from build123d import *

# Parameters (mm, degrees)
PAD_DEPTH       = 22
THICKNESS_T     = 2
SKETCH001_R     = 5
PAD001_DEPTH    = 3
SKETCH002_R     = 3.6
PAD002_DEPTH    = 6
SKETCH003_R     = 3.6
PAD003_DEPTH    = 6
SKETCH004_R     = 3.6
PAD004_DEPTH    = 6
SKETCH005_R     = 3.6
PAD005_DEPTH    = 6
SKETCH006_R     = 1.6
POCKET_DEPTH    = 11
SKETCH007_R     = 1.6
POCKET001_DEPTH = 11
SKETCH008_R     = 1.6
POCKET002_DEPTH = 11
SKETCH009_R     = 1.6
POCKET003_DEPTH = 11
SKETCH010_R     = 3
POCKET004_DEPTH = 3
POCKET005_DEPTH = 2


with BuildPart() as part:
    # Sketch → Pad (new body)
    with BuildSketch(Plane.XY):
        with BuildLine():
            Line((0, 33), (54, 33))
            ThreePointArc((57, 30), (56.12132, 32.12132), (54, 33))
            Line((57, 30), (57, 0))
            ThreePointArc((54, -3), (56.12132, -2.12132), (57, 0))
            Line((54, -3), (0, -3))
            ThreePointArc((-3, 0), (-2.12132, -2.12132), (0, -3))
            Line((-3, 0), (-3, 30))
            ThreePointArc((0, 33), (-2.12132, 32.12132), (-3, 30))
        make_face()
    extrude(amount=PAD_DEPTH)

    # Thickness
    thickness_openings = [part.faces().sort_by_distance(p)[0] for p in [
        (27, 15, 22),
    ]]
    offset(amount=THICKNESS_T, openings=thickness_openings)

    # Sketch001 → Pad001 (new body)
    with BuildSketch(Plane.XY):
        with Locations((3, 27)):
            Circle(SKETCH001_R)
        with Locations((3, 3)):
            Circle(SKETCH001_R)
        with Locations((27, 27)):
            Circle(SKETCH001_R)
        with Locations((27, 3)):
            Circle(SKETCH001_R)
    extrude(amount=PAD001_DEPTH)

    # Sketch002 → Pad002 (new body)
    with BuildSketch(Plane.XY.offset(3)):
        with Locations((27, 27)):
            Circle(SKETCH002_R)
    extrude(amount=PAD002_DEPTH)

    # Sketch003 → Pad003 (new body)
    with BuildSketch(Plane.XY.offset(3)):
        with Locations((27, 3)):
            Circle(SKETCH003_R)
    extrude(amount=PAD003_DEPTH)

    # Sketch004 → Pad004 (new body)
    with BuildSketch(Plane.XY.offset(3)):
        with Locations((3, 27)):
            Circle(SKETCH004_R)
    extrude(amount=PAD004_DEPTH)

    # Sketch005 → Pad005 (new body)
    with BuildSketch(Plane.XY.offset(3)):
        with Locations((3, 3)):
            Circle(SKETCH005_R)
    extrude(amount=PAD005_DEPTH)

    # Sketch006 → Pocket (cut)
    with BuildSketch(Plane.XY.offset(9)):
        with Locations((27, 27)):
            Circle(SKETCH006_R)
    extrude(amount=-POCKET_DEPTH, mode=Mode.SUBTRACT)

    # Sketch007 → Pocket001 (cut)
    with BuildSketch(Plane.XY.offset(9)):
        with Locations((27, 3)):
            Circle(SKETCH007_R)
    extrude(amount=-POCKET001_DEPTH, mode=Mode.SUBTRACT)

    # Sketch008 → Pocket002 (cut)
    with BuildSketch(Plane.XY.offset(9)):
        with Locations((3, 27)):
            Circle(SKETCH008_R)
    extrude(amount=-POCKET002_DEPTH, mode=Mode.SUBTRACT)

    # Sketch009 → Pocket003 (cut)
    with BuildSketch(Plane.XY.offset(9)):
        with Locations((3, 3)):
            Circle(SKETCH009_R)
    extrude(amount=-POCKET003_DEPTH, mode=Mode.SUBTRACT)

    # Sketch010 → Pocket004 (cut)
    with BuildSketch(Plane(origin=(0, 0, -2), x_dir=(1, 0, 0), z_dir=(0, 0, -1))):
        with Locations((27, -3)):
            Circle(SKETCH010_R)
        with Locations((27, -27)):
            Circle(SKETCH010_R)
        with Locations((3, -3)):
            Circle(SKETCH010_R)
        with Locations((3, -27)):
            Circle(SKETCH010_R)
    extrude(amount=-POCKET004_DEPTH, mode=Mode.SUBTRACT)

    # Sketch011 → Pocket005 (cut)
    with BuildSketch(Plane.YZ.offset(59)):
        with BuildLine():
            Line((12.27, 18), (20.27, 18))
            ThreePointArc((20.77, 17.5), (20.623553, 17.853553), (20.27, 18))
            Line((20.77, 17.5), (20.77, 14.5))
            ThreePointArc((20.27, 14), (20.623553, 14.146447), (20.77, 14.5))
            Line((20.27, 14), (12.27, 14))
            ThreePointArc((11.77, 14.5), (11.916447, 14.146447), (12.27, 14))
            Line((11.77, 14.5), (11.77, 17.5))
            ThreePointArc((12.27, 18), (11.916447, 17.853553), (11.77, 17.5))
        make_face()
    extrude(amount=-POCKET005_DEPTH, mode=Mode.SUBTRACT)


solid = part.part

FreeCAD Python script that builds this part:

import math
import FreeCAD as App
import Part
import Sketcher


def faces_at(feature, points):
    """Names of the faces that lie closest to the given points."""
    faces = feature.Shape.Faces
    near = lambda p: min(range(len(faces)), key=lambda i: faces[i].distToShape(Part.Vertex(*p))[0])
    return sorted({f"Face{near(p) + 1}" for p in points})

doc = App.newDocument("Part")
params = doc.addObject("Spreadsheet::Sheet", "Params")
for row, (alias, value) in enumerate([
    ("sketch1_radius", "3.000001 mm"),
    ("sketch1_width", "54 mm"),
    ("sketch1_height", "30 mm"),
    ("pad1_length", "22 mm"),
    ("thickness_wall", "2 mm"),
    ("sketch2_diameter", "10 mm"),
    ("pad2_length", "3 mm"),
    ("sketch3_diameter", "7.2 mm"),
    ("pad3_length", "6 mm"),
    ("sketch4_diameter", "7.2 mm"),
    ("pad4_length", "6 mm"),
    ("sketch5_diameter", "7.2 mm"),
    ("pad5_length", "6 mm"),
    ("sketch6_diameter", "7.2 mm"),
    ("pad6_length", "6 mm"),
    ("sketch7_diameter", "3.2 mm"),
    ("pocket1_length", "11 mm"),
    ("sketch8_diameter", "3.2 mm"),
    ("pocket2_length", "11 mm"),
    ("sketch9_diameter", "3.2 mm"),
    ("pocket3_length", "11 mm"),
    ("sketch10_diameter", "3.2 mm"),
    ("pocket4_length", "11 mm"),
    ("sketch11_diameter", "6 mm"),
    ("pocket5_length", "3 mm"),
    ("sketch12_radius", "0.500001 mm"),
    ("sketch12_width", "8 mm"),
    ("sketch12_height", "3 mm"),
    ("pocket6_length", "2 mm"),
], start=1):
    params.set(f"A{row}", alias)
    params.set(f"B{row}", "=" + value)
    params.setAlias(f"B{row}", alias)

body = doc.addObject("PartDesign::Body", "Body")

# Sketch on XY plane
sketch1 = body.newObject("Sketcher::SketchObject", "Sketch")
sketch1.AttachmentSupport = (doc.getObject("XY_Plane"), [""])
sketch1.MapMode = "FlatFace"
sketch1.addGeometry([
    Part.LineSegment(App.Vector(54, 33, 0), App.Vector(0, 33, 0)),  # 0
    Part.ArcOfCircle(Part.Circle(App.Vector(0, 30, 0), App.Vector(0, 0, 1), 3), math.radians(90), math.radians(180)),  # 1
    Part.LineSegment(App.Vector(-3, 30, 0), App.Vector(-3, 0, 0)),  # 2
    Part.ArcOfCircle(Part.Circle(App.Vector(0, 0, 0), App.Vector(0, 0, 1), 3), math.radians(-180), math.radians(-90)),  # 3
    Part.LineSegment(App.Vector(0, -3, 0), App.Vector(54, -3, 0)),  # 4
    Part.ArcOfCircle(Part.Circle(App.Vector(54, 0, 0), App.Vector(0, 0, 1), 3), math.radians(-90), math.radians(0)),  # 5
    Part.LineSegment(App.Vector(57, 0, 0), App.Vector(57, 30, 0)),  # 6
    Part.ArcOfCircle(Part.Circle(App.Vector(54, 30, 0), App.Vector(0, 0, 1), 3), math.radians(0), math.radians(90)),  # 7
], False)
sketch1.addConstraint([
    Sketcher.Constraint("Tangent", 0, 2, 1, 1),
    Sketcher.Constraint("Tangent", 1, 2, 2, 1),
    Sketcher.Constraint("Tangent", 2, 2, 3, 1),
    Sketcher.Constraint("Tangent", 3, 2, 4, 1),
    Sketcher.Constraint("Tangent", 4, 2, 5, 1),
    Sketcher.Constraint("Tangent", 5, 2, 6, 1),
    Sketcher.Constraint("Tangent", 6, 2, 7, 1),
    Sketcher.Constraint("Tangent", 7, 2, 0, 1),
    Sketcher.Constraint("Horizontal", 0),
    Sketcher.Constraint("Vertical", 2),
    Sketcher.Constraint("Horizontal", 4),
    Sketcher.Constraint("Vertical", 6),
    Sketcher.Constraint("Coincident", 3, 3, -1, 1),
    Sketcher.Constraint("Equal", 1, 3),
    Sketcher.Constraint("Equal", 3, 5),
    Sketcher.Constraint("Equal", 5, 7),
    Sketcher.Constraint("Radius", 1, 3.000001),
    Sketcher.Constraint("DistanceX", 0, 2, 0, 1, 54.0),
    Sketcher.Constraint("DistanceY", 2, 2, 2, 1, 30.0),
])
sketch1.setExpression("Constraints[16]", "Params.sketch1_radius")
sketch1.setExpression("Constraints[17]", "Params.sketch1_width")
sketch1.setExpression("Constraints[18]", "Params.sketch1_height")
pad1 = body.newObject("PartDesign::Pad", "Pad")
pad1.Profile = sketch1
pad1.setExpression("Length", "Params.pad1_length")
doc.recompute()

thickness = body.newObject("PartDesign::Thickness", "Thickness")
thickness.Base = (pad1, faces_at(pad1, [(27, 15, 22)]))
thickness.setExpression("Value", "Params.thickness_wall")
thickness.Reversed = False
thickness.Join = "Arc"

# Sketch on XY plane
sketch2 = body.newObject("Sketcher::SketchObject", "Sketch001")
sketch2.AttachmentSupport = (doc.getObject("XY_Plane"), [""])
sketch2.MapMode = "FlatFace"
sketch2.addGeometry([
    Part.Circle(App.Vector(3, 27, 0), App.Vector(0, 0, 1), 5),
    Part.Circle(App.Vector(3, 3, 0), App.Vector(0, 0, 1), 5),
    Part.Circle(App.Vector(27, 27, 0), App.Vector(0, 0, 1), 5),
    Part.Circle(App.Vector(27, 3, 0), App.Vector(0, 0, 1), 5),
], False)
sketch2.addConstraint([
    Sketcher.Constraint("Equal", 0, 1),
    Sketcher.Constraint("Equal", 1, 2),
    Sketcher.Constraint("Equal", 2, 3),
    Sketcher.Constraint("Horizontal", 0, 3, 2, 3),
    Sketcher.Constraint("Horizontal", 1, 3, 3, 3),
    Sketcher.Constraint("Vertical", 0, 3, 1, 3),
    Sketcher.Constraint("Vertical", 2, 3, 3, 3),
    Sketcher.Constraint("Diameter", 0, 10.0),
    Sketcher.Constraint("DistanceX", -1, 1, 0, 3, 3.0),
    Sketcher.Constraint("DistanceY", -1, 1, 0, 3, 27.0),
    Sketcher.Constraint("DistanceY", -1, 1, 1, 3, 3.0),
    Sketcher.Constraint("DistanceX", -1, 1, 2, 3, 27.0),
])
sketch2.setExpression("Constraints[7]", "Params.sketch2_diameter")
pad2 = body.newObject("PartDesign::Pad", "Pad001")
pad2.Profile = sketch2
pad2.setExpression("Length", "Params.pad2_length")

# Sketch on XY plane
sketch3 = body.newObject("Sketcher::SketchObject", "Sketch002")
sketch3.AttachmentSupport = (doc.getObject("XY_Plane"), [""])
sketch3.MapMode = "FlatFace"
sketch3.AttachmentOffset = App.Placement(App.Vector(0, 0, 3), App.Rotation())
sketch3.addGeometry(Part.Circle(App.Vector(27, 27, 0), App.Vector(0, 0, 1), 3.6), False)
sketch3.addConstraint([
    Sketcher.Constraint("Diameter", 0, 7.2),
    Sketcher.Constraint("DistanceX", -1, 1, 0, 3, 27.0),
    Sketcher.Constraint("DistanceY", -1, 1, 0, 3, 27.0),
])
sketch3.setExpression("Constraints[0]", "Params.sketch3_diameter")
pad3 = body.newObject("PartDesign::Pad", "Pad002")
pad3.Profile = sketch3
pad3.setExpression("Length", "Params.pad3_length")

# Sketch on XY plane
sketch4 = body.newObject("Sketcher::SketchObject", "Sketch003")
sketch4.AttachmentSupport = (doc.getObject("XY_Plane"), [""])
sketch4.MapMode = "FlatFace"
sketch4.AttachmentOffset = App.Placement(App.Vector(0, 0, 3), App.Rotation())
sketch4.addGeometry(Part.Circle(App.Vector(27, 3, 0), App.Vector(0, 0, 1), 3.6), False)
sketch4.addConstraint([
    Sketcher.Constraint("Diameter", 0, 7.2),
    Sketcher.Constraint("DistanceX", -1, 1, 0, 3, 27.0),
    Sketcher.Constraint("DistanceY", -1, 1, 0, 3, 3.0),
])
sketch4.setExpression("Constraints[0]", "Params.sketch4_diameter")
pad4 = body.newObject("PartDesign::Pad", "Pad003")
pad4.Profile = sketch4
pad4.setExpression("Length", "Params.pad4_length")

# Sketch on XY plane
sketch5 = body.newObject("Sketcher::SketchObject", "Sketch004")
sketch5.AttachmentSupport = (doc.getObject("XY_Plane"), [""])
sketch5.MapMode = "FlatFace"
sketch5.AttachmentOffset = App.Placement(App.Vector(0, 0, 3), App.Rotation())
sketch5.addGeometry(Part.Circle(App.Vector(3, 27, 0), App.Vector(0, 0, 1), 3.6), False)
sketch5.addConstraint([
    Sketcher.Constraint("Diameter", 0, 7.2),
    Sketcher.Constraint("DistanceX", -1, 1, 0, 3, 3.0),
    Sketcher.Constraint("DistanceY", -1, 1, 0, 3, 27.0),
])
sketch5.setExpression("Constraints[0]", "Params.sketch5_diameter")
pad5 = body.newObject("PartDesign::Pad", "Pad004")
pad5.Profile = sketch5
pad5.setExpression("Length", "Params.pad5_length")

# Sketch on XY plane
sketch6 = body.newObject("Sketcher::SketchObject", "Sketch005")
sketch6.AttachmentSupport = (doc.getObject("XY_Plane"), [""])
sketch6.MapMode = "FlatFace"
sketch6.AttachmentOffset = App.Placement(App.Vector(0, 0, 3), App.Rotation())
sketch6.addGeometry(Part.Circle(App.Vector(3, 3, 0), App.Vector(0, 0, 1), 3.6), False)
sketch6.addConstraint([
    Sketcher.Constraint("Diameter", 0, 7.2),
    Sketcher.Constraint("DistanceX", -1, 1, 0, 3, 3.0),
    Sketcher.Constraint("DistanceY", -1, 1, 0, 3, 3.0),
])
sketch6.setExpression("Constraints[0]", "Params.sketch6_diameter")
pad6 = body.newObject("PartDesign::Pad", "Pad005")
pad6.Profile = sketch6
pad6.setExpression("Length", "Params.pad6_length")

# Sketch on XY plane
sketch7 = body.newObject("Sketcher::SketchObject", "Sketch006")
sketch7.AttachmentSupport = (doc.getObject("XY_Plane"), [""])
sketch7.MapMode = "FlatFace"
sketch7.AttachmentOffset = App.Placement(App.Vector(0, 0, 9), App.Rotation())
sketch7.addGeometry(Part.Circle(App.Vector(27, 27, 0), App.Vector(0, 0, 1), 1.6), False)
sketch7.addConstraint([
    Sketcher.Constraint("Diameter", 0, 3.2),
    Sketcher.Constraint("DistanceX", -1, 1, 0, 3, 27.0),
    Sketcher.Constraint("DistanceY", -1, 1, 0, 3, 27.0),
])
sketch7.setExpression("Constraints[0]", "Params.sketch7_diameter")
pocket1 = body.newObject("PartDesign::Pocket", "Pocket")
pocket1.Profile = sketch7
pocket1.setExpression("Length", "Params.pocket1_length")

# Sketch on XY plane
sketch8 = body.newObject("Sketcher::SketchObject", "Sketch007")
sketch8.AttachmentSupport = (doc.getObject("XY_Plane"), [""])
sketch8.MapMode = "FlatFace"
sketch8.AttachmentOffset = App.Placement(App.Vector(0, 0, 9), App.Rotation())
sketch8.addGeometry(Part.Circle(App.Vector(27, 3, 0), App.Vector(0, 0, 1), 1.6), False)
sketch8.addConstraint([
    Sketcher.Constraint("Diameter", 0, 3.2),
    Sketcher.Constraint("DistanceX", -1, 1, 0, 3, 27.0),
    Sketcher.Constraint("DistanceY", -1, 1, 0, 3, 3.0),
])
sketch8.setExpression("Constraints[0]", "Params.sketch8_diameter")
pocket2 = body.newObject("PartDesign::Pocket", "Pocket001")
pocket2.Profile = sketch8
pocket2.setExpression("Length", "Params.pocket2_length")

# Sketch on XY plane
sketch9 = body.newObject("Sketcher::SketchObject", "Sketch008")
sketch9.AttachmentSupport = (doc.getObject("XY_Plane"), [""])
sketch9.MapMode = "FlatFace"
sketch9.AttachmentOffset = App.Placement(App.Vector(0, 0, 9), App.Rotation())
sketch9.addGeometry(Part.Circle(App.Vector(3, 27, 0), App.Vector(0, 0, 1), 1.6), False)
sketch9.addConstraint([
    Sketcher.Constraint("Diameter", 0, 3.2),
    Sketcher.Constraint("DistanceX", -1, 1, 0, 3, 3.0),
    Sketcher.Constraint("DistanceY", -1, 1, 0, 3, 27.0),
])
sketch9.setExpression("Constraints[0]", "Params.sketch9_diameter")
pocket3 = body.newObject("PartDesign::Pocket", "Pocket002")
pocket3.Profile = sketch9
pocket3.setExpression("Length", "Params.pocket3_length")

# Sketch on XY plane
sketch10 = body.newObject("Sketcher::SketchObject", "Sketch009")
sketch10.AttachmentSupport = (doc.getObject("XY_Plane"), [""])
sketch10.MapMode = "FlatFace"
sketch10.AttachmentOffset = App.Placement(App.Vector(0, 0, 9), App.Rotation())
sketch10.addGeometry(Part.Circle(App.Vector(3, 3, 0), App.Vector(0, 0, 1), 1.6), False)
sketch10.addConstraint([
    Sketcher.Constraint("Diameter", 0, 3.2),
    Sketcher.Constraint("DistanceX", -1, 1, 0, 3, 3.0),
    Sketcher.Constraint("DistanceY", -1, 1, 0, 3, 3.0),
])
sketch10.setExpression("Constraints[0]", "Params.sketch10_diameter")
pocket4 = body.newObject("PartDesign::Pocket", "Pocket003")
pocket4.Profile = sketch10
pocket4.setExpression("Length", "Params.pocket4_length")

# Sketch on XY plane
sketch11 = body.newObject("Sketcher::SketchObject", "Sketch010")
sketch11.AttachmentSupport = (doc.getObject("XY_Plane"), [""])
sketch11.MapMode = "FlatFace"
sketch11.AttachmentOffset = App.Placement(App.Vector(0, 0, -2), App.Rotation())
sketch11.addGeometry([
    Part.Circle(App.Vector(27, 3, 0), App.Vector(0, 0, 1), 3),
    Part.Circle(App.Vector(27, 27, 0), App.Vector(0, 0, 1), 3),
    Part.Circle(App.Vector(3, 3, 0), App.Vector(0, 0, 1), 3),
    Part.Circle(App.Vector(3, 27, 0), App.Vector(0, 0, 1), 3),
], False)
sketch11.addConstraint([
    Sketcher.Constraint("Equal", 0, 1),
    Sketcher.Constraint("Equal", 1, 2),
    Sketcher.Constraint("Equal", 2, 3),
    Sketcher.Constraint("Horizontal", 0, 3, 2, 3),
    Sketcher.Constraint("Horizontal", 1, 3, 3, 3),
    Sketcher.Constraint("Vertical", 0, 3, 1, 3),
    Sketcher.Constraint("Vertical", 2, 3, 3, 3),
    Sketcher.Constraint("Diameter", 0, 6.0),
    Sketcher.Constraint("DistanceX", -1, 1, 0, 3, 27.0),
    Sketcher.Constraint("DistanceY", -1, 1, 0, 3, 3.0),
    Sketcher.Constraint("DistanceY", -1, 1, 1, 3, 27.0),
    Sketcher.Constraint("DistanceX", -1, 1, 2, 3, 3.0),
])
sketch11.setExpression("Constraints[7]", "Params.sketch11_diameter")
pocket5 = body.newObject("PartDesign::Pocket", "Pocket004")
pocket5.Profile = sketch11
pocket5.setExpression("Length", "Params.pocket5_length")
pocket5.Reversed = True

# Sketch on YZ plane
sketch12 = body.newObject("Sketcher::SketchObject", "Sketch011")
sketch12.AttachmentSupport = (doc.getObject("YZ_Plane"), [""])
sketch12.MapMode = "FlatFace"
sketch12.AttachmentOffset = App.Placement(App.Vector(0, 0, 59), App.Rotation())
sketch12.addGeometry([
    Part.LineSegment(App.Vector(20.3, 18, 0), App.Vector(12.3, 18, 0)),  # 0
    Part.ArcOfCircle(Part.Circle(App.Vector(12.3, 17.5, 0), App.Vector(0, 0, 1), 0.5), math.radians(90), math.radians(180)),  # 1
    Part.LineSegment(App.Vector(11.8, 17.5, 0), App.Vector(11.8, 14.5, 0)),  # 2
    Part.ArcOfCircle(Part.Circle(App.Vector(12.3, 14.5, 0), App.Vector(0, 0, 1), 0.5), math.radians(-180), math.radians(-90)),  # 3
    Part.LineSegment(App.Vector(12.3, 14, 0), App.Vector(20.3, 14, 0)),  # 4
    Part.ArcOfCircle(Part.Circle(App.Vector(20.3, 14.5, 0), App.Vector(0, 0, 1), 0.5), math.radians(-90), math.radians(0)),  # 5
    Part.LineSegment(App.Vector(20.8, 14.5, 0), App.Vector(20.8, 17.5, 0)),  # 6
    Part.ArcOfCircle(Part.Circle(App.Vector(20.3, 17.5, 0), App.Vector(0, 0, 1), 0.5), math.radians(0), math.radians(90)),  # 7
], False)
sketch12.addConstraint([
    Sketcher.Constraint("Coincident", 0, 2, 1, 1),
    Sketcher.Constraint("Coincident", 1, 2, 2, 1),
    Sketcher.Constraint("Coincident", 2, 2, 3, 1),
    Sketcher.Constraint("Coincident", 3, 2, 4, 1),
    Sketcher.Constraint("Coincident", 4, 2, 5, 1),
    Sketcher.Constraint("Coincident", 5, 2, 6, 1),
    Sketcher.Constraint("Coincident", 6, 2, 7, 1),
    Sketcher.Constraint("Coincident", 7, 2, 0, 1),
    Sketcher.Constraint("Horizontal", 0),
    Sketcher.Constraint("Vertical", 2),
    Sketcher.Constraint("Horizontal", 4),
    Sketcher.Constraint("Vertical", 6),
    Sketcher.Constraint("Equal", 1, 3),
    Sketcher.Constraint("Equal", 3, 5),
    Sketcher.Constraint("Equal", 5, 7),
    Sketcher.Constraint("Horizontal", 7, 3, 1, 2),
    Sketcher.Constraint("Horizontal", 5, 3, 2, 2),
    Sketcher.Constraint("Horizontal", 2, 2, 5, 2),
    Sketcher.Constraint("Horizontal", 1, 2, 6, 2),
    Sketcher.Constraint("Vertical", 3, 3, 0, 2),
    Sketcher.Constraint("Vertical", 0, 2, 3, 2),
    Sketcher.Constraint("Vertical", 7, 3, 4, 2),
    Sketcher.Constraint("Vertical", 4, 2, 7, 2),
    Sketcher.Constraint("Radius", 1, 0.500001),
    Sketcher.Constraint("DistanceX", 0, 2, 0, 1, 8.0),
    Sketcher.Constraint("DistanceY", 2, 2, 2, 1, 3.0),
    Sketcher.Constraint("DistanceY", -1, 1, 0, 2, 18.0),
    Sketcher.Constraint("DistanceX", -1, 1, 1, 3, 12.270001),
])
sketch12.setExpression("Constraints[23]", "Params.sketch12_radius")
sketch12.setExpression("Constraints[24]", "Params.sketch12_width")
sketch12.setExpression("Constraints[25]", "Params.sketch12_height")
pocket6 = body.newObject("PartDesign::Pocket", "Pocket005")
pocket6.Profile = sketch12
pocket6.setExpression("Length", "Params.pocket6_length")

doc.recompute()
